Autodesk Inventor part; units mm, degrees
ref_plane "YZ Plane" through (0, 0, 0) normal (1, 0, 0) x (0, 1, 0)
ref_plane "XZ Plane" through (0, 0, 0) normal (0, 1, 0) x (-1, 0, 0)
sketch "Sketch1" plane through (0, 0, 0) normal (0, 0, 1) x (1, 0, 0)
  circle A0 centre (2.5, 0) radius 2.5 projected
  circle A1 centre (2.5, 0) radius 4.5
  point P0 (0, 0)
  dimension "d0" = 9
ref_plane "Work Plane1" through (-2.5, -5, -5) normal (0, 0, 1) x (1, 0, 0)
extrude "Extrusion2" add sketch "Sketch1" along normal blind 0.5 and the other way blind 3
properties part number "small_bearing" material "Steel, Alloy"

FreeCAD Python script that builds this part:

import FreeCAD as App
import Part
import Sketcher
from FreeCAD import Vector

doc = App.newDocument("Part")
body = doc.addObject("PartDesign::Body", "Body")

# Sketch on XY plane
sketch1 = body.newObject("Sketcher::SketchObject", "Sketch")
sketch1.AttachmentSupport = (doc.getObject("XY_Plane"), [""])
sketch1.MapMode = "FlatFace"
sketch1.addGeometry([
    Part.Circle(Vector(2.5, 0, 0), Vector(0, 0, 1), 4.5),
    Part.Circle(Vector(2.5, 0, 0), Vector(0, 0, 1), 2.5),
], False)
sketch1.addConstraint([
    Sketcher.Constraint("Coincident", 1, 3, 0, 3),
    Sketcher.Constraint("PointOnObject", 0, 3, -1),
    Sketcher.Constraint("Diameter", 0, 9.0),
    Sketcher.Constraint("Diameter", 1, 5.0),
    Sketcher.Constraint("DistanceX", -1, 1, 0, 3, 2.5),
])
pad1 = body.newObject("PartDesign::Pad", "Pad")
pad1.Profile = sketch1
pad1.Type = "TwoLengths"
pad1.Length = 0.5
pad1.Length2 = 3

doc.recompute()
